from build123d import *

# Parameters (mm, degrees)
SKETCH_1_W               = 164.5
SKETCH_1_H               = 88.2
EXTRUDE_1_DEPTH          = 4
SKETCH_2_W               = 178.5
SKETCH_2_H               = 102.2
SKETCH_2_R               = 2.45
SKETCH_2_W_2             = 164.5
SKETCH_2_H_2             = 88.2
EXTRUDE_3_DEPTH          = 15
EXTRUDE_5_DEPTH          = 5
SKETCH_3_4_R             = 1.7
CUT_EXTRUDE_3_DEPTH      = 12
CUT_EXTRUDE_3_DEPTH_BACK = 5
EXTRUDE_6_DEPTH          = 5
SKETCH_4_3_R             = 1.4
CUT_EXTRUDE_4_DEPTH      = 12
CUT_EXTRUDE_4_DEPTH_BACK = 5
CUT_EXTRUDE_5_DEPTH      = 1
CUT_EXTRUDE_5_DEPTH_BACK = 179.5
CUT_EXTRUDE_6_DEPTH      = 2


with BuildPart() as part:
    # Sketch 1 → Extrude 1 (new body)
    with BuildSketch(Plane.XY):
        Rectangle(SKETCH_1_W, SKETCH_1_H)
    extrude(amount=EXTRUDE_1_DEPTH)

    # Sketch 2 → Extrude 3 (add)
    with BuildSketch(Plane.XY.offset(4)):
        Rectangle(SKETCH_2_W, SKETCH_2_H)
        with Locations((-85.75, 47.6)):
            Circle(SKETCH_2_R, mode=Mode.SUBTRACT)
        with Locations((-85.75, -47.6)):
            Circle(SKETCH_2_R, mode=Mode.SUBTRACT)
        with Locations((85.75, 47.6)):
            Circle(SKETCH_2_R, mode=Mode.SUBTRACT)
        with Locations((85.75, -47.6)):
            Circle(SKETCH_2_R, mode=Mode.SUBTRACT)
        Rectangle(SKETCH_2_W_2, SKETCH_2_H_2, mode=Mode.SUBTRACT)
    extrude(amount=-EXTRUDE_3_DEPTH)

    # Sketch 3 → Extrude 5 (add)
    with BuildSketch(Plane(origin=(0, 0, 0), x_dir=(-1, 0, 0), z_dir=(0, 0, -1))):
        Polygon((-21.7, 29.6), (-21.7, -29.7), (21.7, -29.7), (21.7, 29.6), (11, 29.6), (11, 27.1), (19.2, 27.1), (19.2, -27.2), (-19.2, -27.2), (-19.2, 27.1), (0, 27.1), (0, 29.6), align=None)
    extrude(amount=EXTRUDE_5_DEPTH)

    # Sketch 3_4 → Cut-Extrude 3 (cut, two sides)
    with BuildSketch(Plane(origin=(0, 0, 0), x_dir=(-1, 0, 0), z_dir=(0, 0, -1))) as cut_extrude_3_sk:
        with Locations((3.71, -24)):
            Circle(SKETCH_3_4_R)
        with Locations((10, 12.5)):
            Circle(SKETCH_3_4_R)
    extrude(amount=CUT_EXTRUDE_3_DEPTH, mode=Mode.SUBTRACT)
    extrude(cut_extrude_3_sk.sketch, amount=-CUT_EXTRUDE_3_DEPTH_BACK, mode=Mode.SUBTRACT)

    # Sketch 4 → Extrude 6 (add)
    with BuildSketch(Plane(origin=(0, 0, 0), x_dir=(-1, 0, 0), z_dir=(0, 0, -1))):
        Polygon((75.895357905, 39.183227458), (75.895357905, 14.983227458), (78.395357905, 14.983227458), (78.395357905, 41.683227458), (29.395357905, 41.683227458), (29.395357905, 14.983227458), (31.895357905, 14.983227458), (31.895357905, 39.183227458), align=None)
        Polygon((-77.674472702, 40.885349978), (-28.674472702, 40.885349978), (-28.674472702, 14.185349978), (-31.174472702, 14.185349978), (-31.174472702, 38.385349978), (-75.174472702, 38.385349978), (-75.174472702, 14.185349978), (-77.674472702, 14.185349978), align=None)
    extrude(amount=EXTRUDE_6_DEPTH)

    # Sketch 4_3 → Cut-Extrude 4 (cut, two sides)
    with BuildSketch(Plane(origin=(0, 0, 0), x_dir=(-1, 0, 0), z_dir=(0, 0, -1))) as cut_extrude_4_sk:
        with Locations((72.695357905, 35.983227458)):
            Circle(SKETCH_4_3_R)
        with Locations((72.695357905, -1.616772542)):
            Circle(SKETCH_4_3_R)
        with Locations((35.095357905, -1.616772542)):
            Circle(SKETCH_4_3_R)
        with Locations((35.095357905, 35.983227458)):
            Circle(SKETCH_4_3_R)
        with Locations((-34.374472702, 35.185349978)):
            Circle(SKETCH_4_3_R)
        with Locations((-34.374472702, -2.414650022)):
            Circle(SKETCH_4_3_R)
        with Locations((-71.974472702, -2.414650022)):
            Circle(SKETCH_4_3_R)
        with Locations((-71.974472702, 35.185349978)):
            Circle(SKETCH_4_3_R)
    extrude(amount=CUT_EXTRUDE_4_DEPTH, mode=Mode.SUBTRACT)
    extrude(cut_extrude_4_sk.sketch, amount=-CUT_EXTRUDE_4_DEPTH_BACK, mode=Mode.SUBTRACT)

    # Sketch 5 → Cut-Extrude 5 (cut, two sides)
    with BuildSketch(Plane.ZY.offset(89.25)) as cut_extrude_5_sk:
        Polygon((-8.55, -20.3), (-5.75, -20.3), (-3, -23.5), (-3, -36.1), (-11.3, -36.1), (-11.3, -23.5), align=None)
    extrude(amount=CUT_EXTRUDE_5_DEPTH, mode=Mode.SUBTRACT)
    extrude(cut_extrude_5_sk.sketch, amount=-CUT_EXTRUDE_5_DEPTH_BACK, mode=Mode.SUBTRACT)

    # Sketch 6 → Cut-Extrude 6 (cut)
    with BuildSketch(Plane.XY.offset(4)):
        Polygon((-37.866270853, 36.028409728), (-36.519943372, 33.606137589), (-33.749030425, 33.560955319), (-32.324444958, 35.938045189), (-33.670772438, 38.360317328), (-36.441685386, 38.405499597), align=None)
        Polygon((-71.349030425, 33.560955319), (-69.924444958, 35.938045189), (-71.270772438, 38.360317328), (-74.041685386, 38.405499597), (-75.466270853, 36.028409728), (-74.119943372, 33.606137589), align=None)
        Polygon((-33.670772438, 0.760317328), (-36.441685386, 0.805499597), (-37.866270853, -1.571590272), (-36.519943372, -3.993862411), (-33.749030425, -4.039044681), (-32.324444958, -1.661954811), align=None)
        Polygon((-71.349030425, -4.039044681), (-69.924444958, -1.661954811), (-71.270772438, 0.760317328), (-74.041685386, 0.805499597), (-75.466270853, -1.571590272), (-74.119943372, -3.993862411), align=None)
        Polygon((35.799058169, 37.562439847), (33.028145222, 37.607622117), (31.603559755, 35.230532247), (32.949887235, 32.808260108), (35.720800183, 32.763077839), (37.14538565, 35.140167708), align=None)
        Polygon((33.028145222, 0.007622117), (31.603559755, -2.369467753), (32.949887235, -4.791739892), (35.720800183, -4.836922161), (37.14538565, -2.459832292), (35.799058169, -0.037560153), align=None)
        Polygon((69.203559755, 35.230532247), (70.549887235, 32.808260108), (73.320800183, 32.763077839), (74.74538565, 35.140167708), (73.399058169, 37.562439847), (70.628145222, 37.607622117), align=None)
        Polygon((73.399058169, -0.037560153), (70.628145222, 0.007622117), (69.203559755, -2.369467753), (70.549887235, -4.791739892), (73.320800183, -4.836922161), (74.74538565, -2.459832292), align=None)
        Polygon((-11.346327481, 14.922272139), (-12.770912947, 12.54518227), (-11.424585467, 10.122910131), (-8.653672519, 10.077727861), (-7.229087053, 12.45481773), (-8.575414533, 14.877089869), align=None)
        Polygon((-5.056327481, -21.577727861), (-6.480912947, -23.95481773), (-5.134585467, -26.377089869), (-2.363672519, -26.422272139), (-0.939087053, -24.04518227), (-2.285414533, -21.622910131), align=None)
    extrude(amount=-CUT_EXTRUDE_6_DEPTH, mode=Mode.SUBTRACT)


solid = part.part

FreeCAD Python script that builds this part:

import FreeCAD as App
import Part
import Sketcher
Q = App.Units.Quantity


def add_polygon(sketch, points):
    """Adds a closed chain of lines whose ends are joined by coincident constraints."""
    first, n = sketch.GeometryCount, len(points)
    for a, b in zip(points, points[1:] + points[:1]):
        sketch.addGeometry(Part.LineSegment(App.Vector(*a, 0), App.Vector(*b, 0)), False)
    for i in range(n):
        sketch.addConstraint(Sketcher.Constraint("Coincident", first + i, 2, first + (i + 1) % n, 1))

doc = App.newDocument("Part")
body = doc.addObject("PartDesign::Body", "Body")

sketch1 = body.newObject("Sketcher::SketchObject", "Sketch")
sketch1.AttachmentSupport = (doc.getObject("XY_Plane"), [""])
sketch1.MapMode = "FlatFace"
add_polygon(sketch1, [(-82, 44), (-82, -44), (82, -44), (82, 44)])
sketch1.addConstraint([
    Sketcher.Constraint("Vertical", 0),
    Sketcher.Constraint("Horizontal", 1),
    Sketcher.Constraint("Vertical", 2),
    Sketcher.Constraint("Horizontal", 3),
    Sketcher.Constraint("Symmetric", 0, 2, 2, 2, -1, 1),
    Sketcher.Constraint("DistanceX", 1, 1, 1, 2, Q("164.5 mm")),
    Sketcher.Constraint("DistanceY", 0, 2, 0, 1, Q("88.2 mm")),
])
pad1 = body.newObject("PartDesign::Pad", "Pad")
pad1.Profile = sketch1
pad1.Length = 4

sketch2 = body.newObject("Sketcher::SketchObject", "Sketch001")
sketch2.AttachmentSupport = (doc.getObject("XY_Plane"), [""])
sketch2.MapMode = "FlatFace"
sketch2.AttachmentOffset = App.Placement(App.Vector(0, 0, 4), App.Rotation())
add_polygon(sketch2, [(-89.2, 51.1), (-89.2, -51.1), (89.2, -51.1), (89.2, 51.1)])
sketch2.addGeometry(Part.Circle(App.Vector(-85.8, -47.6, 0), App.Vector(0, 0, 1), 2.5), False)
sketch2.addGeometry(Part.Circle(App.Vector(85.8, -47.6, 0), App.Vector(0, 0, 1), 2.5), False)
sketch2.addGeometry(Part.Circle(App.Vector(-85.8, 47.6, 0), App.Vector(0, 0, 1), 2.5), False)
add_polygon(sketch2, [(82.2, -44.1), (-82.2, -44.1), (-82.2, 44.1), (82.2, 44.1)])
sketch2.addGeometry(Part.Circle(App.Vector(85.8, 47.6, 0), App.Vector(0, 0, 1), 2.5), False)
sketch2.addConstraint([
    Sketcher.Constraint("Vertical", 0),
    Sketcher.Constraint("Horizontal", 1),
    Sketcher.Constraint("Vertical", 2),
    Sketcher.Constraint("Horizontal", 3),
    Sketcher.Constraint("Horizontal", 7),
    Sketcher.Constraint("Vertical", 8),
    Sketcher.Constraint("Horizontal", 9),
    Sketcher.Constraint("Vertical", 10),
    Sketcher.Constraint("Equal", 4, 5),
    Sketcher.Constraint("Equal", 5, 6),
    Sketcher.Constraint("Equal", 6, 11),
    Sketcher.Constraint("Symmetric", 5, 3, 6, 3, -1, 1),
    Sketcher.Constraint("Symmetric", 4, 3, 11, 3, -1, 1),
    Sketcher.Constraint("Symmetric", 0, 2, 2, 2, -1, 1),
    Sketcher.Constraint("Symmetric", 7, 2, 9, 2, -1, 1),
    Sketcher.Constraint("Symmetric", 4, 3, 5, 3, -2),
    Sketcher.Constraint("Diameter", 4, Q("4.9 mm")),
    Sketcher.Constraint("DistanceX", 1, 1, 1, 2, Q("178.5 mm")),
    Sketcher.Constraint("DistanceX", 7, 2, 7, 1, Q("164.5 mm")),
    Sketcher.Constraint("DistanceY", 0, 2, 0, 1, Q("102.2 mm")),
    Sketcher.Constraint("DistanceY", 8, 1, 8, 2, Q("88.2 mm")),
    Sketcher.Constraint("DistanceX", 0, 2, 5, 3, Q("175 mm")),
    Sketcher.Constraint("DistanceY", 4, 3, -1, 1, Q("47.6 mm")),
])
pad2 = body.newObject("PartDesign::Pad", "Pad001")
pad2.Profile = sketch2
pad2.Length = 15
pad2.Reversed = True

sketch3 = body.newObject("Sketcher::SketchObject", "Sketch002")
sketch3.AttachmentSupport = (doc.getObject("XY_Plane"), [""])
sketch3.MapMode = "FlatFace"
add_polygon(sketch3, [(21.7, 29.6), (21.7, -29.7), (-21.7, -29.7), (-21.7, 29.6), (-11, 29.6), (-11, 27.1), (-19.2, 27.1), (-19.2, -27.2), (19.2, -27.2), (19.2, 27.1), (0, 27.1), (0, 29.6)])
sketch3.addConstraint([
    Sketcher.Constraint("Vertical", 0),
    Sketcher.Constraint("Horizontal", 1),
    Sketcher.Constraint("Vertical", 2),
    Sketcher.Constraint("Horizontal", 3),
    Sketcher.Constraint("Vertical", 4),
    Sketcher.Constraint("Horizontal", 5),
    Sketcher.Constraint("Vertical", 6),
    Sketcher.Constraint("Horizontal", 7),
    Sketcher.Constraint("Vertical", 8),
    Sketcher.Constraint("Horizontal", 9),
    Sketcher.Constraint("Vertical", 10),
    Sketcher.Constraint("Horizontal", 11),
    Sketcher.Constraint("Symmetric", 5, 2, 8, 2, -2),
    Sketcher.Constraint("Symmetric", 2, 2, 11, 2, -2),
    Sketcher.Constraint("PointOnObject", 9, 2, -2),
    Sketcher.Constraint("DistanceX", 1, 2, 1, 1, Q("43.4 mm")),
    Sketcher.Constraint("DistanceX", 3, 1, 3, 2, Q("10.7 mm")),
    Sketcher.Constraint("DistanceX", 5, 2, 5, 1, Q("8.2 mm")),
    Sketcher.Constraint("DistanceY", 0, 2, 0, 1, Q("59.3 mm")),
    Sketcher.Constraint("DistanceY", 4, 2, 4, 1, Q("2.5 mm")),
    Sketcher.Constraint("DistanceY", 6, 2, 6, 1, Q("54.3 mm")),
    Sketcher.Constraint("DistanceY", 0, 2, -1, 1, Q("29.7 mm")),
])
pad3 = body.newObject("PartDesign::Pad", "Pad002")
pad3.Profile = sketch3
pad3.Length = 5
pad3.Reversed = True

sketch4 = body.newObject("Sketcher::SketchObject", "Sketch003")
sketch4.AttachmentSupport = (doc.getObject("XY_Plane"), [""])
sketch4.MapMode = "FlatFace"
sketch4.addGeometry([
    Part.Circle(App.Vector(-3.7, -24, 0), App.Vector(0, 0, 1), 1.7),
    Part.Circle(App.Vector(-10, 12.5, 0), App.Vector(0, 0, 1), 1.7),
], False)
sketch4.addConstraint([
    Sketcher.Constraint("Equal", 0, 1),
    Sketcher.Constraint("Diameter", 0, Q("3.4 mm")),
    Sketcher.Constraint("DistanceY", 0, 3, -1, 1, Q("24 mm")),
    Sketcher.Constraint("DistanceX", 1, 3, -1, 1, Q("10 mm")),
    Sketcher.Constraint("DistanceY", -1, 1, 1, 3, Q("12.5 mm")),
    Sketcher.Constraint("DistanceX", 0, 3, -1, 1, Q("3.71 mm")),
])
pocket1 = body.newObject("PartDesign::Pocket", "Pocket")
pocket1.Profile = sketch4
pocket1.Type = "ThroughAll"
pocket1.Midplane = True

sketch5 = body.newObject("Sketcher::SketchObject", "Sketch004")
sketch5.AttachmentSupport = (doc.getObject("XY_Plane"), [""])
sketch5.MapMode = "FlatFace"
add_polygon(sketch5, [(-75.9, 39.2), (-75.9, 15), (-78.4, 15), (-78.4, 41.7), (-29.4, 41.7), (-29.4, 15), (-31.9, 15), (-31.9, 39.2)])
add_polygon(sketch5, [(28.7, 40.9), (77.7, 40.9), (77.7, 14.2), (75.2, 14.2), (75.2, 38.4), (31.2, 38.4), (31.2, 14.2), (28.7, 14.2)])
sketch5.addConstraint([
    Sketcher.Constraint("Vertical", 0),
    Sketcher.Constraint("Horizontal", 1),
    Sketcher.Constraint("Vertical", 2),
    Sketcher.Constraint("Horizontal", 3),
    Sketcher.Constraint("Vertical", 4),
    Sketcher.Constraint("Horizontal", 5),
    Sketcher.Constraint("Vertical", 6),
    Sketcher.Constraint("Horizontal", 7),
    Sketcher.Constraint("Horizontal", 8),
    Sketcher.Constraint("Vertical", 9),
    Sketcher.Constraint("Horizontal", 10),
    Sketcher.Constraint("Vertical", 11),
    Sketcher.Constraint("Horizontal", 12),
    Sketcher.Constraint("Vertical", 13),
    Sketcher.Constraint("Horizontal", 14),
    Sketcher.Constraint("Vertical", 15),
    Sketcher.Constraint("Horizontal", 1, 2, 4, 2),
    Sketcher.Constraint("Horizontal", 10, 2, 13, 2),
    Sketcher.Constraint("Equal", 1, 5),
    Sketcher.Constraint("Equal", 3, 8),
    Sketcher.Constraint("Equal", 5, 10),
    Sketcher.Constraint("Equal", 7, 12),
    Sketcher.Constraint("Equal", 4, 9),
    Sketcher.Constraint("Equal", 6, 11),
    Sketcher.Constraint("DistanceX", 3, 1, 3, 2, Q("49 mm")),
    Sketcher.Constraint("DistanceX", 7, 2, 7, 1, Q("44 mm")),
    Sketcher.Constraint("DistanceY", 0, 2, 0, 1, Q("24.2 mm")),
    Sketcher.Constraint("DistanceY", 2, 1, 2, 2, Q("26.7 mm")),
    Sketcher.Constraint("DistanceY", -1, 1, 8, 2, Q("40.88535 mm")),
    Sketcher.Constraint("DistanceX", 3, 2, 8, 2, Q("107.069831 mm")),
    Sketcher.Constraint("DistanceX", 0, 2, -1, 1, Q("75.895358 mm")),
    Sketcher.Constraint("DistanceY", -1, 1, 0, 2, Q("14.983227 mm")),
])
pad4 = body.newObject("PartDesign::Pad", "Pad003")
pad4.Profile = sketch5
pad4.Length = 5
pad4.Reversed = True

sketch6 = body.newObject("Sketcher::SketchObject", "Sketch005")
sketch6.AttachmentSupport = (doc.getObject("XY_Plane"), [""])
sketch6.MapMode = "FlatFace"
sketch6.addGeometry([
    Part.Circle(App.Vector(-72.7, 36, 0), App.Vector(0, 0, 1), 1.4),
    Part.Circle(App.Vector(-72.7, -1.6, 0), App.Vector(0, 0, 1), 1.4),
    Part.Circle(App.Vector(-35.1, -1.6, 0), App.Vector(0, 0, 1), 1.4),
    Part.Circle(App.Vector(-35.1, 36, 0), App.Vector(0, 0, 1), 1.4),
    Part.Circle(App.Vector(34.4, 35.2, 0), App.Vector(0, 0, 1), 1.4),
    Part.Circle(App.Vector(34.4, -2.4, 0), App.Vector(0, 0, 1), 1.4),
    Part.Circle(App.Vector(72, -2.4, 0), App.Vector(0, 0, 1), 1.4),
    Part.Circle(App.Vector(72, 35.2, 0), App.Vector(0, 0, 1), 1.4),
], False)
sketch6.addConstraint([
    Sketcher.Constraint("Equal", 0, 1),
    Sketcher.Constraint("Equal", 1, 2),
    Sketcher.Constraint("Equal", 2, 3),
    Sketcher.Constraint("Equal", 3, 4),
    Sketcher.Constraint("Equal", 4, 5),
    Sketcher.Constraint("Equal", 5, 6),
    Sketcher.Constraint("Equal", 6, 7),
    Sketcher.Constraint("Horizontal", 1, 3, 2, 3),
    Sketcher.Constraint("Horizontal", 0, 3, 3, 3),
    Sketcher.Constraint("Horizontal", 5, 3, 6, 3),
    Sketcher.Constraint("Horizontal", 4, 3, 7, 3),
    Sketcher.Constraint("Vertical", 0, 3, 1, 3),
    Sketcher.Constraint("Vertical", 2, 3, 3, 3),
    Sketcher.Constraint("Vertical", 4, 3, 5, 3),
    Sketcher.Constraint("Vertical", 6, 3, 7, 3),
    Sketcher.Constraint("Diameter", 0, Q("2.8 mm")),
    Sketcher.Constraint("DistanceY", 1, 3, 0, 3, Q("37.6 mm")),
    Sketcher.Constraint("DistanceX", 1, 3, 2, 3, Q("37.6 mm")),
    Sketcher.Constraint("DistanceY", 5, 3, 4, 3, Q("37.6 mm")),
    Sketcher.Constraint("DistanceX", 5, 3, 6, 3, Q("37.6 mm")),
    Sketcher.Constraint("DistanceY", -1, 1, 4, 3, Q("35.18535 mm")),
    Sketcher.Constraint("DistanceX", 3, 3, 4, 3, Q("69.469831 mm")),
    Sketcher.Constraint("DistanceX", 0, 3, -1, 1, Q("72.695358 mm")),
    Sketcher.Constraint("DistanceY", -1, 1, 0, 3, Q("35.983227 mm")),
])
pocket2 = body.newObject("PartDesign::Pocket", "Pocket001")
pocket2.Profile = sketch6
pocket2.Type = "ThroughAll"
pocket2.Midplane = True

sketch7 = body.newObject("Sketcher::SketchObject", "Sketch006")
sketch7.AttachmentSupport = (doc.getObject("YZ_Plane"), [""])
sketch7.MapMode = "FlatFace"
sketch7.AttachmentOffset = App.Placement(App.Vector(0, 0, -89.25), App.Rotation())
add_polygon(sketch7, [(-20.3, -5.8), (-20.3, -8.6), (-23.5, -11.3), (-36.1, -11.3), (-36.1, -3), (-23.5, -3)])
sketch7.addConstraint([
    Sketcher.Constraint("Vertical", 0),
    Sketcher.Constraint("Horizontal", 2),
    Sketcher.Constraint("Vertical", 3),
    Sketcher.Constraint("Horizontal", 4),
    Sketcher.Constraint("Vertical", 1, 2, 4, 2),
    Sketcher.Constraint("Equal", 1, 5),
    Sketcher.Constraint("DistanceX", 2, 2, 2, 1, Q("12.6 mm")),
    Sketcher.Constraint("DistanceY", 0, 2, 0, 1, Q("2.8 mm")),
    Sketcher.Constraint("DistanceY", 3, 1, 3, 2, Q("8.3 mm")),
    Sketcher.Constraint("DistanceY", 3, 2, -1, 1, Q("3 mm")),
    Sketcher.Constraint("DistanceX", 0, 2, -1, 1, Q("20.3 mm")),
    Sketcher.Constraint("DistanceX", 1, 2, -1, 1, Q("23.5 mm")),
])
pocket3 = body.newObject("PartDesign::Pocket", "Pocket002")
pocket3.Profile = sketch7
pocket3.Type = "ThroughAll"
pocket3.Midplane = True

sketch8 = body.newObject("Sketcher::SketchObject", "Sketch007")
sketch8.AttachmentSupport = (doc.getObject("XY_Plane"), [""])
sketch8.MapMode = "FlatFace"
sketch8.AttachmentOffset = App.Placement(App.Vector(0, 0, 4), App.Rotation())
add_polygon(sketch8, [(-37.866271, 36.02841), (-36.519943, 33.606138), (-33.74903, 33.560955), (-32.324445, 35.938045), (-33.670772, 38.360317), (-36.441685, 38.4055)])
add_polygon(sketch8, [(-71.34903, 33.560955), (-69.924445, 35.938045), (-71.270772, 38.360317), (-74.041685, 38.4055), (-75.466271, 36.02841), (-74.119943, 33.606138)])
add_polygon(sketch8, [(-33.670772, 0.760317), (-36.441685, 0.8055), (-37.866271, -1.57159), (-36.519943, -3.993862), (-33.74903, -4.039045), (-32.324445, -1.661955)])
add_polygon(sketch8, [(-71.34903, -4.039045), (-69.924445, -1.661955), (-71.270772, 0.760317), (-74.041685, 0.8055), (-75.466271, -1.57159), (-74.119943, -3.993862)])
add_polygon(sketch8, [(35.799058, 37.56244), (33.028145, 37.607622), (31.60356, 35.230532), (32.949887, 32.80826), (35.7208, 32.763078), (37.145386, 35.140168)])
add_polygon(sketch8, [(33.028145, 0.007622), (31.60356, -2.369468), (32.949887, -4.79174), (35.7208, -4.836922), (37.145386, -2.459832), (35.799058, -0.03756)])
add_polygon(sketch8, [(69.20356, 35.230532), (70.549887, 32.80826), (73.3208, 32.763078), (74.745386, 35.140168), (73.399058, 37.56244), (70.628145, 37.607622)])
add_polygon(sketch8, [(73.399058, -0.03756), (70.628145, 0.007622), (69.20356, -2.369468), (70.549887, -4.79174), (73.3208, -4.836922), (74.745386, -2.459832)])
add_polygon(sketch8, [(-11.346327, 14.922272), (-12.770913, 12.545182), (-11.424585, 10.12291), (-8.653673, 10.077728), (-7.229087, 12.454818), (-8.575415, 14.87709)])
add_polygon(sketch8, [(-5.056327, -21.577728), (-6.480913, -23.954818), (-5.134585, -26.37709), (-2.363673, -26.422272), (-0.939087, -24.045182), (-2.285415, -21.62291)])
sketch8.addConstraint([
    Sketcher.Constraint("Parallel", 0, 3),
    Sketcher.Constraint("Parallel", 1, 4),
    Sketcher.Constraint("Parallel", 2, 5),
    Sketcher.Constraint("Parallel", 5, 6),
    Sketcher.Constraint("Parallel", 3, 7),
    Sketcher.Constraint("Parallel", 4, 8),
    Sketcher.Constraint("Parallel", 6, 9),
    Sketcher.Constraint("Parallel", 7, 10),
    Sketcher.Constraint("Parallel", 8, 11),
    Sketcher.Constraint("Parallel", 11, 12),
    Sketcher.Constraint("Parallel", 9, 13),
    Sketcher.Constraint("Parallel", 10, 14),
    Sketcher.Constraint("Parallel", 12, 15),
    Sketcher.Constraint("Parallel", 13, 16),
    Sketcher.Constraint("Parallel", 14, 17),
    Sketcher.Constraint("Parallel", 16, 18),
    Sketcher.Constraint("Parallel", 17, 19),
    Sketcher.Constraint("Parallel", 15, 20),
    Sketcher.Constraint("Parallel", 18, 21),
    Sketcher.Constraint("Parallel", 19, 22),
    Sketcher.Constraint("Parallel", 20, 23),
    Sketcher.Constraint("Parallel", 23, 24),
    Sketcher.Constraint("Parallel", 21, 25),
    Sketcher.Constraint("Parallel", 22, 26),
    Sketcher.Constraint("Parallel", 24, 27),
    Sketcher.Constraint("Parallel", 25, 28),
    Sketcher.Constraint("Parallel", 26, 29),
    Sketcher.Constraint("Parallel", 28, 30),
    Sketcher.Constraint("Parallel", 29, 31),
    Sketcher.Constraint("Parallel", 27, 32),
    Sketcher.Constraint("Parallel", 30, 33),
    Sketcher.Constraint("Parallel", 31, 34),
    Sketcher.Constraint("Parallel", 32, 35),
    Sketcher.Constraint("Parallel", 34, 36),
    Sketcher.Constraint("Parallel", 35, 37),
    Sketcher.Constraint("Parallel", 33, 38),
    Sketcher.Constraint("Parallel", 36, 39),
    Sketcher.Constraint("Parallel", 37, 40),
    Sketcher.Constraint("Parallel", 38, 41),
    Sketcher.Constraint("Parallel", 40, 42),
    Sketcher.Constraint("Parallel", 41, 43),
    Sketcher.Constraint("Parallel", 39, 44),
    Sketcher.Constraint("Parallel", 42, 45),
    Sketcher.Constraint("Parallel", 43, 46),
    Sketcher.Constraint("Parallel", 44, 47),
    Sketcher.Constraint("Parallel", 46, 48),
    Sketcher.Constraint("Parallel", 47, 49),
    Sketcher.Constraint("Parallel", 45, 50),
    Sketcher.Constraint("Parallel", 48, 51),
    Sketcher.Constraint("Parallel", 49, 52),
    Sketcher.Constraint("Parallel", 50, 53),
    Sketcher.Constraint("Parallel", 51, 54),
    Sketcher.Constraint("Parallel", 52, 55),
    Sketcher.Constraint("Parallel", 53, 56),
    Sketcher.Constraint("Parallel", 54, 57),
    Sketcher.Constraint("Parallel", 55, 58),
    Sketcher.Constraint("Parallel", 56, 59),
    Sketcher.Constraint("Horizontal", 2, 2, 6, 2),
    Sketcher.Constraint("Horizontal", 3, 2, 7, 2),
    Sketcher.Constraint("Horizontal", 4, 2, 8, 2),
    Sketcher.Constraint("Horizontal", 5, 2, 9, 2),
    Sketcher.Constraint("Horizontal", 0, 2, 10, 2),
    Sketcher.Constraint("Horizontal", 16, 2, 18, 2),
    Sketcher.Constraint("Horizontal", 17, 2, 19, 2),
    Sketcher.Constraint("Horizontal", 12, 2, 20, 2),
    Sketcher.Constraint("Horizontal", 13, 2, 21, 2),
    Sketcher.Constraint("Horizontal", 14, 2, 22, 2),
    Sketcher.Constraint("Horizontal", 26, 2, 36, 2),
    Sketcher.Constraint("Horizontal", 27, 2, 37, 2),
    Sketcher.Constraint("Horizontal", 28, 2, 38, 2),
    Sketcher.Constraint("Horizontal", 29, 2, 39, 2),
    Sketcher.Constraint("Horizontal", 24, 2, 40, 2),
    Sketcher.Constraint("Horizontal", 35, 2, 42, 2),
    Sketcher.Constraint("Horizontal", 30, 2, 43, 2),
    Sketcher.Constraint("Horizontal", 31, 2, 44, 2),
    Sketcher.Constraint("Horizontal", 32, 2, 45, 2),
    Sketcher.Constraint("Horizontal", 33, 2, 46, 2),
    Sketcher.Constraint("Vertical", 4, 2, 12, 2),
    Sketcher.Constraint("Vertical", 5, 2, 13, 2),
    Sketcher.Constraint("Vertical", 0, 2, 14, 2),
    Sketcher.Constraint("Vertical", 1, 2, 15, 2),
    Sketcher.Constraint("Vertical", 2, 2, 16, 2),
    Sketcher.Constraint("Vertical", 6, 2, 18, 2),
    Sketcher.Constraint("Vertical", 25, 2, 30, 2),
    Sketcher.Constraint("Vertical", 26, 2, 31, 2),
    Sketcher.Constraint("Vertical", 27, 2, 32, 2),
    Sketcher.Constraint("Vertical", 28, 2, 33, 2),
    Sketcher.Constraint("Vertical", 29, 2, 34, 2),
    Sketcher.Constraint("Vertical", 40, 2, 42, 2),
    Sketcher.Constraint("Equal", 0, 1),
    Sketcher.Constraint("Equal", 1, 2),
    Sketcher.Constraint("Equal", 2, 3),
    Sketcher.Constraint("Equal", 23, 24),
    Sketcher.Constraint("Equal", 24, 25),
    Sketcher.Constraint("Equal", 25, 26),
    Sketcher.Constraint("Equal", 26, 27),
    Sketcher.Constraint("Equal", 47, 48),
    Sketcher.Constraint("Equal", 48, 49),
    Sketcher.Constraint("Equal", 49, 50),
    Sketcher.Constraint("Equal", 50, 51),
    Sketcher.Constraint("Equal", 53, 54),
    Sketcher.Constraint("Equal", 54, 55),
    Sketcher.Constraint("Equal", 55, 56),
    Sketcher.Constraint("Equal", 56, 57),
    Sketcher.Constraint("DistanceX", 7, 2, 3, 2, Q("37.6 mm")),
    Sketcher.Constraint("DistanceY", 12, 2, 4, 2, Q("37.6 mm")),
    Sketcher.Constraint("DistanceY", 30, 2, 25, 2, Q("37.6 mm")),
    Sketcher.Constraint("DistanceX", 26, 2, 36, 2, Q("37.6 mm")),
    Sketcher.Constraint("DistanceY", 55, 2, 49, 2, Q("36.5 mm")),
    Sketcher.Constraint("DistanceX", 49, 2, 55, 2, Q("6.29 mm")),
    Sketcher.Constraint("DistanceY", -1, 1, 4, 2, Q("38.4055 mm")),
    Sketcher.Constraint("DistanceX", -1, 1, 27, 2, Q("35.7208 mm")),
    Sketcher.Constraint("DistanceX", 0, 2, 2, 2, Q("4.195498 mm")),
    Sketcher.Constraint("DistanceX", 12, 2, 49, 2, Q("25.0171 mm")),
    Sketcher.Constraint("DistanceY", 17, 2, 51, 2, Q("11.6945 mm")),
    Sketcher.Constraint("Distance", 0, Q("2.771281 mm")),
    Sketcher.Constraint("DistanceX", 1, 2, -1, 1, Q("33.74903 mm")),
    Sketcher.Constraint("DistanceX", 5, 2, -1, 1, Q("37.866271 mm")),
    Sketcher.Constraint("DistanceY", -1, 1, 26, 2, Q("32.80826 mm")),
    Sketcher.Constraint("DistanceY", -1, 1, 29, 2, Q("37.56244 mm")),
])
pocket4 = body.newObject("PartDesign::Pocket", "Pocket003")
pocket4.Profile = sketch8
pocket4.Length = 2

doc.recompute()
